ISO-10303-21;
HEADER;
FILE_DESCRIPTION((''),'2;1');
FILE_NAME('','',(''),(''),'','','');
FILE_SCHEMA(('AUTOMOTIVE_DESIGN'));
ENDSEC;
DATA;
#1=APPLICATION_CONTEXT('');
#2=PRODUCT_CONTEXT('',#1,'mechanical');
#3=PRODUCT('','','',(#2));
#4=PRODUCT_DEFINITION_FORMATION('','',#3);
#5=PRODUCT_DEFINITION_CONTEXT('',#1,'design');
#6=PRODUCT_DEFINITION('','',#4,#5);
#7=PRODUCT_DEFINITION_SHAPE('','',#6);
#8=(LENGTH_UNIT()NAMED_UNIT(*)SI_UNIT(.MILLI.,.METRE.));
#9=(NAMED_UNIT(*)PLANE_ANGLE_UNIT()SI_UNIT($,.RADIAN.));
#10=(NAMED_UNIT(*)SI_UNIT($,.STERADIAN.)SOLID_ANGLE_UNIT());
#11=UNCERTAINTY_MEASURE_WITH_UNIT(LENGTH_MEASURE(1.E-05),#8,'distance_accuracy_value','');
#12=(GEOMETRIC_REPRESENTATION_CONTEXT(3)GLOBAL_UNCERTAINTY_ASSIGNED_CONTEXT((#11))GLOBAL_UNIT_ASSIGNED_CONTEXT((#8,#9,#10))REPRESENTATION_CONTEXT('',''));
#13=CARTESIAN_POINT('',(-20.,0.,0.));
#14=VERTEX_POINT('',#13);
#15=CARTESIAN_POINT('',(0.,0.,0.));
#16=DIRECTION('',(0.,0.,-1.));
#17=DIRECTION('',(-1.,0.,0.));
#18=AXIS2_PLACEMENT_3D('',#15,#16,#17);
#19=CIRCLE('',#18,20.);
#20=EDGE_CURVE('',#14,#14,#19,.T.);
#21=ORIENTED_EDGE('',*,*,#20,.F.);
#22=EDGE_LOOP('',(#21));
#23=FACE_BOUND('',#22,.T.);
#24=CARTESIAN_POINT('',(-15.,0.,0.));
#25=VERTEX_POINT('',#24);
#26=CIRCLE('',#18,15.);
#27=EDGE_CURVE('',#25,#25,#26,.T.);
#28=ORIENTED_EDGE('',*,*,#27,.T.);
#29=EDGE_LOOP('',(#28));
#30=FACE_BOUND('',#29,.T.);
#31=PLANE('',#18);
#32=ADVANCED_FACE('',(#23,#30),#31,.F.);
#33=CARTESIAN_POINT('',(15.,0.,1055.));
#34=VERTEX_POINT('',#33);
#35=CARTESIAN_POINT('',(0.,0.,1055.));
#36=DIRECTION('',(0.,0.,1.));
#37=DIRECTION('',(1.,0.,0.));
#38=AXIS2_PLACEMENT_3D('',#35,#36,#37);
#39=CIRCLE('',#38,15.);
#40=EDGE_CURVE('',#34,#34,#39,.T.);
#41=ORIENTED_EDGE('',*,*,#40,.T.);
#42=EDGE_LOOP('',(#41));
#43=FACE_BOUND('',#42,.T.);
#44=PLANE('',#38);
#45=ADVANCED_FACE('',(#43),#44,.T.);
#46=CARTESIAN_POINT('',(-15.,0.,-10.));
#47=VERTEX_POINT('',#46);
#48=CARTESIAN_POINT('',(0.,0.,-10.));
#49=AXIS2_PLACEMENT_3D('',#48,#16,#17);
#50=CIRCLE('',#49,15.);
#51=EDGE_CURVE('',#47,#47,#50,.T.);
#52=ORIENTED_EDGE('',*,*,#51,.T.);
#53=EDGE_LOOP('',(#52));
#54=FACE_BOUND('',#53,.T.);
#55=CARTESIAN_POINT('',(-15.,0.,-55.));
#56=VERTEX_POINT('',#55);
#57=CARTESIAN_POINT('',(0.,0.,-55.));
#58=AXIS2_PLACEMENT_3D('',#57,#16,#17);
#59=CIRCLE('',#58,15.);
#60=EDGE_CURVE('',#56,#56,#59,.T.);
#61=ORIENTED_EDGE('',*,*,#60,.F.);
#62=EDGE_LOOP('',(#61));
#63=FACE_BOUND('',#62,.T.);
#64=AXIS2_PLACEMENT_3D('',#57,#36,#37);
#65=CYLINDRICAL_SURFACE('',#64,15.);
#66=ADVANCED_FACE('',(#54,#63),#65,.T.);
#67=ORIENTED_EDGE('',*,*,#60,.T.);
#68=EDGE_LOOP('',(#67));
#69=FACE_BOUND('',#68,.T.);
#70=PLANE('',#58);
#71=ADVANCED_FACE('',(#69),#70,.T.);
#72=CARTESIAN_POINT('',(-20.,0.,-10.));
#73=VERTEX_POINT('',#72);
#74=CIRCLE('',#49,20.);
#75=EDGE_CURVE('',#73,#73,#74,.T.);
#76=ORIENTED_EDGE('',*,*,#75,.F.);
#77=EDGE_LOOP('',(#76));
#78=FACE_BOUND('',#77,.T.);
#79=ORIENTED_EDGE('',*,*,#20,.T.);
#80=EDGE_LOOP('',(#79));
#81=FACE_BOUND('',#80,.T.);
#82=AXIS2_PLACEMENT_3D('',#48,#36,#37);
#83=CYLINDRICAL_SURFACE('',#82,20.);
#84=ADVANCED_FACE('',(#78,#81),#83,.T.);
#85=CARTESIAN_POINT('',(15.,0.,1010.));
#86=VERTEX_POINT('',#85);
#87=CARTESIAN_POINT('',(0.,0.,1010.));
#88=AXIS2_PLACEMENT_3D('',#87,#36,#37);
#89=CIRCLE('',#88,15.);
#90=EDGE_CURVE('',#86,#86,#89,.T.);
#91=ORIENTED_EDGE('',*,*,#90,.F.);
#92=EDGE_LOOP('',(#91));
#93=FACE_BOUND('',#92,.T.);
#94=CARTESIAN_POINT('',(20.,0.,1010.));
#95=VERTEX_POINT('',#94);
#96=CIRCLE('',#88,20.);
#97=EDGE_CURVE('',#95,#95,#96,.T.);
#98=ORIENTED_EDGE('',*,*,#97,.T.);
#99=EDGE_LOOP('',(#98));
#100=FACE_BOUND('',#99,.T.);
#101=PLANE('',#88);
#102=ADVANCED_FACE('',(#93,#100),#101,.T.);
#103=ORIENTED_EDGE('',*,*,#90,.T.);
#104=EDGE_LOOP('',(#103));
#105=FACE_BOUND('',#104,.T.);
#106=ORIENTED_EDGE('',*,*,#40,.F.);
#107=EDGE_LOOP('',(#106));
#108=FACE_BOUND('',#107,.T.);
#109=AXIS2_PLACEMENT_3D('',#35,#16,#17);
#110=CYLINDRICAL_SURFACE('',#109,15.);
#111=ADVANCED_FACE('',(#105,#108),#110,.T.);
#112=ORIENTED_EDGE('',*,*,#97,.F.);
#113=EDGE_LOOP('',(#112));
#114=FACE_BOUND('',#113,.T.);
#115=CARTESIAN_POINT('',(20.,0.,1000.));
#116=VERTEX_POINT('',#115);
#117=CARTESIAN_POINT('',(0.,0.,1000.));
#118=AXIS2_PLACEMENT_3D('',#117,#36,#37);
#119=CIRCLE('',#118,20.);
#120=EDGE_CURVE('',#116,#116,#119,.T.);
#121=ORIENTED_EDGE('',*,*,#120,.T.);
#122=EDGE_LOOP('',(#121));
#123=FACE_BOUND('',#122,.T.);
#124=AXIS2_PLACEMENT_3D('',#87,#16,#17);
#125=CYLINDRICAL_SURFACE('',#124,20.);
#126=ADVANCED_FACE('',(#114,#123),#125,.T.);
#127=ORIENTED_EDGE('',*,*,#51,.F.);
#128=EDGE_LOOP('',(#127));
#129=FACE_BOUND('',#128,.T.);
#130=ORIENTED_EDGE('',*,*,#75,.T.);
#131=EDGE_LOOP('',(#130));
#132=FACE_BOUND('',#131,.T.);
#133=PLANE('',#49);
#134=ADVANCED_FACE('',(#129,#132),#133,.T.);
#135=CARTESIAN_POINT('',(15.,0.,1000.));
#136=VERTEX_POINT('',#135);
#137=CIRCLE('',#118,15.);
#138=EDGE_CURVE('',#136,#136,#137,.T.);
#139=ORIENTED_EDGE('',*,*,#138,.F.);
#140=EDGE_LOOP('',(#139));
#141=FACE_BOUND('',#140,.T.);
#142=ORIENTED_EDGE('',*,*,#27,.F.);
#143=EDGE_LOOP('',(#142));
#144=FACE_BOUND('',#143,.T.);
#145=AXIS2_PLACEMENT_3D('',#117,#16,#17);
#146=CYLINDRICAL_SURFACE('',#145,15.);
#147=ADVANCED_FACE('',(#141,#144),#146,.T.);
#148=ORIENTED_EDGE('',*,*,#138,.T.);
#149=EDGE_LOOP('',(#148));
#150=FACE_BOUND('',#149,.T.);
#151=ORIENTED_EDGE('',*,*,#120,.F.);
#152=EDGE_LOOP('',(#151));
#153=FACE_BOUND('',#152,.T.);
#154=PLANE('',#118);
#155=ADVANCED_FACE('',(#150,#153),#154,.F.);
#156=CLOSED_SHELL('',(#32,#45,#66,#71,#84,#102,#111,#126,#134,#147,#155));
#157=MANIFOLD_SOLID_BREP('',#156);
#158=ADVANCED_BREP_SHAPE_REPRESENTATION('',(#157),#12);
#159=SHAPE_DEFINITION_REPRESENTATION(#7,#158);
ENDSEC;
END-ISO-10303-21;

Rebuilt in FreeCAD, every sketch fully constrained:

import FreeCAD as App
import Part
import Sketcher

doc = App.newDocument("Part")
body = doc.addObject("PartDesign::Body", "Body")

# Sketch on XY plane
sketch1 = body.newObject("Sketcher::SketchObject", "Sketch")
sketch1.AttachmentSupport = (doc.getObject("XY_Plane"), [""])
sketch1.MapMode = "FlatFace"
sketch1.addGeometry(Part.Circle(App.Vector(0, 0, 0), App.Vector(0, 0, 1), 15), False)
sketch1.addConstraint([
    Sketcher.Constraint("Coincident", 0, 3, -1, 1),
    Sketcher.Constraint("Diameter", 0, 30.0),
])
pad1 = body.newObject("PartDesign::Pad", "Pad")
pad1.Profile = sketch1
pad1.Length = 1000

# Sketch on XY plane
sketch2 = body.newObject("Sketcher::SketchObject", "Sketch001")
sketch2.AttachmentSupport = (doc.getObject("XY_Plane"), [""])
sketch2.MapMode = "FlatFace"
sketch2.AttachmentOffset = App.Placement(App.Vector(0, 0, 1000), App.Rotation())
sketch2.addGeometry(Part.Circle(App.Vector(0, 0, 0), App.Vector(0, 0, 1), 20), False)
sketch2.addConstraint([
    Sketcher.Constraint("Coincident", 0, 3, -1, 1),
    Sketcher.Constraint("Diameter", 0, 40.0),
])
pad2 = body.newObject("PartDesign::Pad", "Pad001")
pad2.Profile = sketch2
pad2.Length = 10

# Sketch on XY plane
sketch3 = body.newObject("Sketcher::SketchObject", "Sketch002")
sketch3.AttachmentSupport = (doc.getObject("XY_Plane"), [""])
sketch3.MapMode = "FlatFace"
sketch3.AttachmentOffset = App.Placement(App.Vector(0, 0, 1010), App.Rotation())
sketch3.addGeometry(Part.Circle(App.Vector(0, 0, 0), App.Vector(0, 0, 1), 15), False)
sketch3.addConstraint([
    Sketcher.Constraint("Coincident", 0, 3, -1, 1),
    Sketcher.Constraint("Diameter", 0, 30.0),
])
pad3 = body.newObject("PartDesign::Pad", "Pad002")
pad3.Profile = sketch3
pad3.Length = 45

# Sketch on XY plane
sketch4 = body.newObject("Sketcher::SketchObject", "Sketch003")
sketch4.AttachmentSupport = (doc.getObject("XY_Plane"), [""])
sketch4.MapMode = "FlatFace"
sketch4.addGeometry(Part.Circle(App.Vector(0, 0, 0), App.Vector(0, 0, 1), 20), False)
sketch4.addConstraint([
    Sketcher.Constraint("Coincident", 0, 3, -1, 1),
    Sketcher.Constraint("Diameter", 0, 40.0),
])
pad4 = body.newObject("PartDesign::Pad", "Pad003")
pad4.Profile = sketch4
pad4.Length = 10
pad4.Reversed = True

# Sketch on XY plane
sketch5 = body.newObject("Sketcher::SketchObject", "Sketch004")
sketch5.AttachmentSupport = (doc.getObject("XY_Plane"), [""])
sketch5.MapMode = "FlatFace"
sketch5.AttachmentOffset = App.Placement(App.Vector(0, 0, -10), App.Rotation())
sketch5.addGeometry(Part.Circle(App.Vector(0, 0, 0), App.Vector(0, 0, 1), 15), False)
sketch5.addConstraint([
    Sketcher.Constraint("Coincident", 0, 3, -1, 1),
    Sketcher.Constraint("Diameter", 0, 30.0),
])
pad5 = body.newObject("PartDesign::Pad", "Pad004")
pad5.Profile = sketch5
pad5.Length = 45
pad5.Reversed = True

doc.recompute()
